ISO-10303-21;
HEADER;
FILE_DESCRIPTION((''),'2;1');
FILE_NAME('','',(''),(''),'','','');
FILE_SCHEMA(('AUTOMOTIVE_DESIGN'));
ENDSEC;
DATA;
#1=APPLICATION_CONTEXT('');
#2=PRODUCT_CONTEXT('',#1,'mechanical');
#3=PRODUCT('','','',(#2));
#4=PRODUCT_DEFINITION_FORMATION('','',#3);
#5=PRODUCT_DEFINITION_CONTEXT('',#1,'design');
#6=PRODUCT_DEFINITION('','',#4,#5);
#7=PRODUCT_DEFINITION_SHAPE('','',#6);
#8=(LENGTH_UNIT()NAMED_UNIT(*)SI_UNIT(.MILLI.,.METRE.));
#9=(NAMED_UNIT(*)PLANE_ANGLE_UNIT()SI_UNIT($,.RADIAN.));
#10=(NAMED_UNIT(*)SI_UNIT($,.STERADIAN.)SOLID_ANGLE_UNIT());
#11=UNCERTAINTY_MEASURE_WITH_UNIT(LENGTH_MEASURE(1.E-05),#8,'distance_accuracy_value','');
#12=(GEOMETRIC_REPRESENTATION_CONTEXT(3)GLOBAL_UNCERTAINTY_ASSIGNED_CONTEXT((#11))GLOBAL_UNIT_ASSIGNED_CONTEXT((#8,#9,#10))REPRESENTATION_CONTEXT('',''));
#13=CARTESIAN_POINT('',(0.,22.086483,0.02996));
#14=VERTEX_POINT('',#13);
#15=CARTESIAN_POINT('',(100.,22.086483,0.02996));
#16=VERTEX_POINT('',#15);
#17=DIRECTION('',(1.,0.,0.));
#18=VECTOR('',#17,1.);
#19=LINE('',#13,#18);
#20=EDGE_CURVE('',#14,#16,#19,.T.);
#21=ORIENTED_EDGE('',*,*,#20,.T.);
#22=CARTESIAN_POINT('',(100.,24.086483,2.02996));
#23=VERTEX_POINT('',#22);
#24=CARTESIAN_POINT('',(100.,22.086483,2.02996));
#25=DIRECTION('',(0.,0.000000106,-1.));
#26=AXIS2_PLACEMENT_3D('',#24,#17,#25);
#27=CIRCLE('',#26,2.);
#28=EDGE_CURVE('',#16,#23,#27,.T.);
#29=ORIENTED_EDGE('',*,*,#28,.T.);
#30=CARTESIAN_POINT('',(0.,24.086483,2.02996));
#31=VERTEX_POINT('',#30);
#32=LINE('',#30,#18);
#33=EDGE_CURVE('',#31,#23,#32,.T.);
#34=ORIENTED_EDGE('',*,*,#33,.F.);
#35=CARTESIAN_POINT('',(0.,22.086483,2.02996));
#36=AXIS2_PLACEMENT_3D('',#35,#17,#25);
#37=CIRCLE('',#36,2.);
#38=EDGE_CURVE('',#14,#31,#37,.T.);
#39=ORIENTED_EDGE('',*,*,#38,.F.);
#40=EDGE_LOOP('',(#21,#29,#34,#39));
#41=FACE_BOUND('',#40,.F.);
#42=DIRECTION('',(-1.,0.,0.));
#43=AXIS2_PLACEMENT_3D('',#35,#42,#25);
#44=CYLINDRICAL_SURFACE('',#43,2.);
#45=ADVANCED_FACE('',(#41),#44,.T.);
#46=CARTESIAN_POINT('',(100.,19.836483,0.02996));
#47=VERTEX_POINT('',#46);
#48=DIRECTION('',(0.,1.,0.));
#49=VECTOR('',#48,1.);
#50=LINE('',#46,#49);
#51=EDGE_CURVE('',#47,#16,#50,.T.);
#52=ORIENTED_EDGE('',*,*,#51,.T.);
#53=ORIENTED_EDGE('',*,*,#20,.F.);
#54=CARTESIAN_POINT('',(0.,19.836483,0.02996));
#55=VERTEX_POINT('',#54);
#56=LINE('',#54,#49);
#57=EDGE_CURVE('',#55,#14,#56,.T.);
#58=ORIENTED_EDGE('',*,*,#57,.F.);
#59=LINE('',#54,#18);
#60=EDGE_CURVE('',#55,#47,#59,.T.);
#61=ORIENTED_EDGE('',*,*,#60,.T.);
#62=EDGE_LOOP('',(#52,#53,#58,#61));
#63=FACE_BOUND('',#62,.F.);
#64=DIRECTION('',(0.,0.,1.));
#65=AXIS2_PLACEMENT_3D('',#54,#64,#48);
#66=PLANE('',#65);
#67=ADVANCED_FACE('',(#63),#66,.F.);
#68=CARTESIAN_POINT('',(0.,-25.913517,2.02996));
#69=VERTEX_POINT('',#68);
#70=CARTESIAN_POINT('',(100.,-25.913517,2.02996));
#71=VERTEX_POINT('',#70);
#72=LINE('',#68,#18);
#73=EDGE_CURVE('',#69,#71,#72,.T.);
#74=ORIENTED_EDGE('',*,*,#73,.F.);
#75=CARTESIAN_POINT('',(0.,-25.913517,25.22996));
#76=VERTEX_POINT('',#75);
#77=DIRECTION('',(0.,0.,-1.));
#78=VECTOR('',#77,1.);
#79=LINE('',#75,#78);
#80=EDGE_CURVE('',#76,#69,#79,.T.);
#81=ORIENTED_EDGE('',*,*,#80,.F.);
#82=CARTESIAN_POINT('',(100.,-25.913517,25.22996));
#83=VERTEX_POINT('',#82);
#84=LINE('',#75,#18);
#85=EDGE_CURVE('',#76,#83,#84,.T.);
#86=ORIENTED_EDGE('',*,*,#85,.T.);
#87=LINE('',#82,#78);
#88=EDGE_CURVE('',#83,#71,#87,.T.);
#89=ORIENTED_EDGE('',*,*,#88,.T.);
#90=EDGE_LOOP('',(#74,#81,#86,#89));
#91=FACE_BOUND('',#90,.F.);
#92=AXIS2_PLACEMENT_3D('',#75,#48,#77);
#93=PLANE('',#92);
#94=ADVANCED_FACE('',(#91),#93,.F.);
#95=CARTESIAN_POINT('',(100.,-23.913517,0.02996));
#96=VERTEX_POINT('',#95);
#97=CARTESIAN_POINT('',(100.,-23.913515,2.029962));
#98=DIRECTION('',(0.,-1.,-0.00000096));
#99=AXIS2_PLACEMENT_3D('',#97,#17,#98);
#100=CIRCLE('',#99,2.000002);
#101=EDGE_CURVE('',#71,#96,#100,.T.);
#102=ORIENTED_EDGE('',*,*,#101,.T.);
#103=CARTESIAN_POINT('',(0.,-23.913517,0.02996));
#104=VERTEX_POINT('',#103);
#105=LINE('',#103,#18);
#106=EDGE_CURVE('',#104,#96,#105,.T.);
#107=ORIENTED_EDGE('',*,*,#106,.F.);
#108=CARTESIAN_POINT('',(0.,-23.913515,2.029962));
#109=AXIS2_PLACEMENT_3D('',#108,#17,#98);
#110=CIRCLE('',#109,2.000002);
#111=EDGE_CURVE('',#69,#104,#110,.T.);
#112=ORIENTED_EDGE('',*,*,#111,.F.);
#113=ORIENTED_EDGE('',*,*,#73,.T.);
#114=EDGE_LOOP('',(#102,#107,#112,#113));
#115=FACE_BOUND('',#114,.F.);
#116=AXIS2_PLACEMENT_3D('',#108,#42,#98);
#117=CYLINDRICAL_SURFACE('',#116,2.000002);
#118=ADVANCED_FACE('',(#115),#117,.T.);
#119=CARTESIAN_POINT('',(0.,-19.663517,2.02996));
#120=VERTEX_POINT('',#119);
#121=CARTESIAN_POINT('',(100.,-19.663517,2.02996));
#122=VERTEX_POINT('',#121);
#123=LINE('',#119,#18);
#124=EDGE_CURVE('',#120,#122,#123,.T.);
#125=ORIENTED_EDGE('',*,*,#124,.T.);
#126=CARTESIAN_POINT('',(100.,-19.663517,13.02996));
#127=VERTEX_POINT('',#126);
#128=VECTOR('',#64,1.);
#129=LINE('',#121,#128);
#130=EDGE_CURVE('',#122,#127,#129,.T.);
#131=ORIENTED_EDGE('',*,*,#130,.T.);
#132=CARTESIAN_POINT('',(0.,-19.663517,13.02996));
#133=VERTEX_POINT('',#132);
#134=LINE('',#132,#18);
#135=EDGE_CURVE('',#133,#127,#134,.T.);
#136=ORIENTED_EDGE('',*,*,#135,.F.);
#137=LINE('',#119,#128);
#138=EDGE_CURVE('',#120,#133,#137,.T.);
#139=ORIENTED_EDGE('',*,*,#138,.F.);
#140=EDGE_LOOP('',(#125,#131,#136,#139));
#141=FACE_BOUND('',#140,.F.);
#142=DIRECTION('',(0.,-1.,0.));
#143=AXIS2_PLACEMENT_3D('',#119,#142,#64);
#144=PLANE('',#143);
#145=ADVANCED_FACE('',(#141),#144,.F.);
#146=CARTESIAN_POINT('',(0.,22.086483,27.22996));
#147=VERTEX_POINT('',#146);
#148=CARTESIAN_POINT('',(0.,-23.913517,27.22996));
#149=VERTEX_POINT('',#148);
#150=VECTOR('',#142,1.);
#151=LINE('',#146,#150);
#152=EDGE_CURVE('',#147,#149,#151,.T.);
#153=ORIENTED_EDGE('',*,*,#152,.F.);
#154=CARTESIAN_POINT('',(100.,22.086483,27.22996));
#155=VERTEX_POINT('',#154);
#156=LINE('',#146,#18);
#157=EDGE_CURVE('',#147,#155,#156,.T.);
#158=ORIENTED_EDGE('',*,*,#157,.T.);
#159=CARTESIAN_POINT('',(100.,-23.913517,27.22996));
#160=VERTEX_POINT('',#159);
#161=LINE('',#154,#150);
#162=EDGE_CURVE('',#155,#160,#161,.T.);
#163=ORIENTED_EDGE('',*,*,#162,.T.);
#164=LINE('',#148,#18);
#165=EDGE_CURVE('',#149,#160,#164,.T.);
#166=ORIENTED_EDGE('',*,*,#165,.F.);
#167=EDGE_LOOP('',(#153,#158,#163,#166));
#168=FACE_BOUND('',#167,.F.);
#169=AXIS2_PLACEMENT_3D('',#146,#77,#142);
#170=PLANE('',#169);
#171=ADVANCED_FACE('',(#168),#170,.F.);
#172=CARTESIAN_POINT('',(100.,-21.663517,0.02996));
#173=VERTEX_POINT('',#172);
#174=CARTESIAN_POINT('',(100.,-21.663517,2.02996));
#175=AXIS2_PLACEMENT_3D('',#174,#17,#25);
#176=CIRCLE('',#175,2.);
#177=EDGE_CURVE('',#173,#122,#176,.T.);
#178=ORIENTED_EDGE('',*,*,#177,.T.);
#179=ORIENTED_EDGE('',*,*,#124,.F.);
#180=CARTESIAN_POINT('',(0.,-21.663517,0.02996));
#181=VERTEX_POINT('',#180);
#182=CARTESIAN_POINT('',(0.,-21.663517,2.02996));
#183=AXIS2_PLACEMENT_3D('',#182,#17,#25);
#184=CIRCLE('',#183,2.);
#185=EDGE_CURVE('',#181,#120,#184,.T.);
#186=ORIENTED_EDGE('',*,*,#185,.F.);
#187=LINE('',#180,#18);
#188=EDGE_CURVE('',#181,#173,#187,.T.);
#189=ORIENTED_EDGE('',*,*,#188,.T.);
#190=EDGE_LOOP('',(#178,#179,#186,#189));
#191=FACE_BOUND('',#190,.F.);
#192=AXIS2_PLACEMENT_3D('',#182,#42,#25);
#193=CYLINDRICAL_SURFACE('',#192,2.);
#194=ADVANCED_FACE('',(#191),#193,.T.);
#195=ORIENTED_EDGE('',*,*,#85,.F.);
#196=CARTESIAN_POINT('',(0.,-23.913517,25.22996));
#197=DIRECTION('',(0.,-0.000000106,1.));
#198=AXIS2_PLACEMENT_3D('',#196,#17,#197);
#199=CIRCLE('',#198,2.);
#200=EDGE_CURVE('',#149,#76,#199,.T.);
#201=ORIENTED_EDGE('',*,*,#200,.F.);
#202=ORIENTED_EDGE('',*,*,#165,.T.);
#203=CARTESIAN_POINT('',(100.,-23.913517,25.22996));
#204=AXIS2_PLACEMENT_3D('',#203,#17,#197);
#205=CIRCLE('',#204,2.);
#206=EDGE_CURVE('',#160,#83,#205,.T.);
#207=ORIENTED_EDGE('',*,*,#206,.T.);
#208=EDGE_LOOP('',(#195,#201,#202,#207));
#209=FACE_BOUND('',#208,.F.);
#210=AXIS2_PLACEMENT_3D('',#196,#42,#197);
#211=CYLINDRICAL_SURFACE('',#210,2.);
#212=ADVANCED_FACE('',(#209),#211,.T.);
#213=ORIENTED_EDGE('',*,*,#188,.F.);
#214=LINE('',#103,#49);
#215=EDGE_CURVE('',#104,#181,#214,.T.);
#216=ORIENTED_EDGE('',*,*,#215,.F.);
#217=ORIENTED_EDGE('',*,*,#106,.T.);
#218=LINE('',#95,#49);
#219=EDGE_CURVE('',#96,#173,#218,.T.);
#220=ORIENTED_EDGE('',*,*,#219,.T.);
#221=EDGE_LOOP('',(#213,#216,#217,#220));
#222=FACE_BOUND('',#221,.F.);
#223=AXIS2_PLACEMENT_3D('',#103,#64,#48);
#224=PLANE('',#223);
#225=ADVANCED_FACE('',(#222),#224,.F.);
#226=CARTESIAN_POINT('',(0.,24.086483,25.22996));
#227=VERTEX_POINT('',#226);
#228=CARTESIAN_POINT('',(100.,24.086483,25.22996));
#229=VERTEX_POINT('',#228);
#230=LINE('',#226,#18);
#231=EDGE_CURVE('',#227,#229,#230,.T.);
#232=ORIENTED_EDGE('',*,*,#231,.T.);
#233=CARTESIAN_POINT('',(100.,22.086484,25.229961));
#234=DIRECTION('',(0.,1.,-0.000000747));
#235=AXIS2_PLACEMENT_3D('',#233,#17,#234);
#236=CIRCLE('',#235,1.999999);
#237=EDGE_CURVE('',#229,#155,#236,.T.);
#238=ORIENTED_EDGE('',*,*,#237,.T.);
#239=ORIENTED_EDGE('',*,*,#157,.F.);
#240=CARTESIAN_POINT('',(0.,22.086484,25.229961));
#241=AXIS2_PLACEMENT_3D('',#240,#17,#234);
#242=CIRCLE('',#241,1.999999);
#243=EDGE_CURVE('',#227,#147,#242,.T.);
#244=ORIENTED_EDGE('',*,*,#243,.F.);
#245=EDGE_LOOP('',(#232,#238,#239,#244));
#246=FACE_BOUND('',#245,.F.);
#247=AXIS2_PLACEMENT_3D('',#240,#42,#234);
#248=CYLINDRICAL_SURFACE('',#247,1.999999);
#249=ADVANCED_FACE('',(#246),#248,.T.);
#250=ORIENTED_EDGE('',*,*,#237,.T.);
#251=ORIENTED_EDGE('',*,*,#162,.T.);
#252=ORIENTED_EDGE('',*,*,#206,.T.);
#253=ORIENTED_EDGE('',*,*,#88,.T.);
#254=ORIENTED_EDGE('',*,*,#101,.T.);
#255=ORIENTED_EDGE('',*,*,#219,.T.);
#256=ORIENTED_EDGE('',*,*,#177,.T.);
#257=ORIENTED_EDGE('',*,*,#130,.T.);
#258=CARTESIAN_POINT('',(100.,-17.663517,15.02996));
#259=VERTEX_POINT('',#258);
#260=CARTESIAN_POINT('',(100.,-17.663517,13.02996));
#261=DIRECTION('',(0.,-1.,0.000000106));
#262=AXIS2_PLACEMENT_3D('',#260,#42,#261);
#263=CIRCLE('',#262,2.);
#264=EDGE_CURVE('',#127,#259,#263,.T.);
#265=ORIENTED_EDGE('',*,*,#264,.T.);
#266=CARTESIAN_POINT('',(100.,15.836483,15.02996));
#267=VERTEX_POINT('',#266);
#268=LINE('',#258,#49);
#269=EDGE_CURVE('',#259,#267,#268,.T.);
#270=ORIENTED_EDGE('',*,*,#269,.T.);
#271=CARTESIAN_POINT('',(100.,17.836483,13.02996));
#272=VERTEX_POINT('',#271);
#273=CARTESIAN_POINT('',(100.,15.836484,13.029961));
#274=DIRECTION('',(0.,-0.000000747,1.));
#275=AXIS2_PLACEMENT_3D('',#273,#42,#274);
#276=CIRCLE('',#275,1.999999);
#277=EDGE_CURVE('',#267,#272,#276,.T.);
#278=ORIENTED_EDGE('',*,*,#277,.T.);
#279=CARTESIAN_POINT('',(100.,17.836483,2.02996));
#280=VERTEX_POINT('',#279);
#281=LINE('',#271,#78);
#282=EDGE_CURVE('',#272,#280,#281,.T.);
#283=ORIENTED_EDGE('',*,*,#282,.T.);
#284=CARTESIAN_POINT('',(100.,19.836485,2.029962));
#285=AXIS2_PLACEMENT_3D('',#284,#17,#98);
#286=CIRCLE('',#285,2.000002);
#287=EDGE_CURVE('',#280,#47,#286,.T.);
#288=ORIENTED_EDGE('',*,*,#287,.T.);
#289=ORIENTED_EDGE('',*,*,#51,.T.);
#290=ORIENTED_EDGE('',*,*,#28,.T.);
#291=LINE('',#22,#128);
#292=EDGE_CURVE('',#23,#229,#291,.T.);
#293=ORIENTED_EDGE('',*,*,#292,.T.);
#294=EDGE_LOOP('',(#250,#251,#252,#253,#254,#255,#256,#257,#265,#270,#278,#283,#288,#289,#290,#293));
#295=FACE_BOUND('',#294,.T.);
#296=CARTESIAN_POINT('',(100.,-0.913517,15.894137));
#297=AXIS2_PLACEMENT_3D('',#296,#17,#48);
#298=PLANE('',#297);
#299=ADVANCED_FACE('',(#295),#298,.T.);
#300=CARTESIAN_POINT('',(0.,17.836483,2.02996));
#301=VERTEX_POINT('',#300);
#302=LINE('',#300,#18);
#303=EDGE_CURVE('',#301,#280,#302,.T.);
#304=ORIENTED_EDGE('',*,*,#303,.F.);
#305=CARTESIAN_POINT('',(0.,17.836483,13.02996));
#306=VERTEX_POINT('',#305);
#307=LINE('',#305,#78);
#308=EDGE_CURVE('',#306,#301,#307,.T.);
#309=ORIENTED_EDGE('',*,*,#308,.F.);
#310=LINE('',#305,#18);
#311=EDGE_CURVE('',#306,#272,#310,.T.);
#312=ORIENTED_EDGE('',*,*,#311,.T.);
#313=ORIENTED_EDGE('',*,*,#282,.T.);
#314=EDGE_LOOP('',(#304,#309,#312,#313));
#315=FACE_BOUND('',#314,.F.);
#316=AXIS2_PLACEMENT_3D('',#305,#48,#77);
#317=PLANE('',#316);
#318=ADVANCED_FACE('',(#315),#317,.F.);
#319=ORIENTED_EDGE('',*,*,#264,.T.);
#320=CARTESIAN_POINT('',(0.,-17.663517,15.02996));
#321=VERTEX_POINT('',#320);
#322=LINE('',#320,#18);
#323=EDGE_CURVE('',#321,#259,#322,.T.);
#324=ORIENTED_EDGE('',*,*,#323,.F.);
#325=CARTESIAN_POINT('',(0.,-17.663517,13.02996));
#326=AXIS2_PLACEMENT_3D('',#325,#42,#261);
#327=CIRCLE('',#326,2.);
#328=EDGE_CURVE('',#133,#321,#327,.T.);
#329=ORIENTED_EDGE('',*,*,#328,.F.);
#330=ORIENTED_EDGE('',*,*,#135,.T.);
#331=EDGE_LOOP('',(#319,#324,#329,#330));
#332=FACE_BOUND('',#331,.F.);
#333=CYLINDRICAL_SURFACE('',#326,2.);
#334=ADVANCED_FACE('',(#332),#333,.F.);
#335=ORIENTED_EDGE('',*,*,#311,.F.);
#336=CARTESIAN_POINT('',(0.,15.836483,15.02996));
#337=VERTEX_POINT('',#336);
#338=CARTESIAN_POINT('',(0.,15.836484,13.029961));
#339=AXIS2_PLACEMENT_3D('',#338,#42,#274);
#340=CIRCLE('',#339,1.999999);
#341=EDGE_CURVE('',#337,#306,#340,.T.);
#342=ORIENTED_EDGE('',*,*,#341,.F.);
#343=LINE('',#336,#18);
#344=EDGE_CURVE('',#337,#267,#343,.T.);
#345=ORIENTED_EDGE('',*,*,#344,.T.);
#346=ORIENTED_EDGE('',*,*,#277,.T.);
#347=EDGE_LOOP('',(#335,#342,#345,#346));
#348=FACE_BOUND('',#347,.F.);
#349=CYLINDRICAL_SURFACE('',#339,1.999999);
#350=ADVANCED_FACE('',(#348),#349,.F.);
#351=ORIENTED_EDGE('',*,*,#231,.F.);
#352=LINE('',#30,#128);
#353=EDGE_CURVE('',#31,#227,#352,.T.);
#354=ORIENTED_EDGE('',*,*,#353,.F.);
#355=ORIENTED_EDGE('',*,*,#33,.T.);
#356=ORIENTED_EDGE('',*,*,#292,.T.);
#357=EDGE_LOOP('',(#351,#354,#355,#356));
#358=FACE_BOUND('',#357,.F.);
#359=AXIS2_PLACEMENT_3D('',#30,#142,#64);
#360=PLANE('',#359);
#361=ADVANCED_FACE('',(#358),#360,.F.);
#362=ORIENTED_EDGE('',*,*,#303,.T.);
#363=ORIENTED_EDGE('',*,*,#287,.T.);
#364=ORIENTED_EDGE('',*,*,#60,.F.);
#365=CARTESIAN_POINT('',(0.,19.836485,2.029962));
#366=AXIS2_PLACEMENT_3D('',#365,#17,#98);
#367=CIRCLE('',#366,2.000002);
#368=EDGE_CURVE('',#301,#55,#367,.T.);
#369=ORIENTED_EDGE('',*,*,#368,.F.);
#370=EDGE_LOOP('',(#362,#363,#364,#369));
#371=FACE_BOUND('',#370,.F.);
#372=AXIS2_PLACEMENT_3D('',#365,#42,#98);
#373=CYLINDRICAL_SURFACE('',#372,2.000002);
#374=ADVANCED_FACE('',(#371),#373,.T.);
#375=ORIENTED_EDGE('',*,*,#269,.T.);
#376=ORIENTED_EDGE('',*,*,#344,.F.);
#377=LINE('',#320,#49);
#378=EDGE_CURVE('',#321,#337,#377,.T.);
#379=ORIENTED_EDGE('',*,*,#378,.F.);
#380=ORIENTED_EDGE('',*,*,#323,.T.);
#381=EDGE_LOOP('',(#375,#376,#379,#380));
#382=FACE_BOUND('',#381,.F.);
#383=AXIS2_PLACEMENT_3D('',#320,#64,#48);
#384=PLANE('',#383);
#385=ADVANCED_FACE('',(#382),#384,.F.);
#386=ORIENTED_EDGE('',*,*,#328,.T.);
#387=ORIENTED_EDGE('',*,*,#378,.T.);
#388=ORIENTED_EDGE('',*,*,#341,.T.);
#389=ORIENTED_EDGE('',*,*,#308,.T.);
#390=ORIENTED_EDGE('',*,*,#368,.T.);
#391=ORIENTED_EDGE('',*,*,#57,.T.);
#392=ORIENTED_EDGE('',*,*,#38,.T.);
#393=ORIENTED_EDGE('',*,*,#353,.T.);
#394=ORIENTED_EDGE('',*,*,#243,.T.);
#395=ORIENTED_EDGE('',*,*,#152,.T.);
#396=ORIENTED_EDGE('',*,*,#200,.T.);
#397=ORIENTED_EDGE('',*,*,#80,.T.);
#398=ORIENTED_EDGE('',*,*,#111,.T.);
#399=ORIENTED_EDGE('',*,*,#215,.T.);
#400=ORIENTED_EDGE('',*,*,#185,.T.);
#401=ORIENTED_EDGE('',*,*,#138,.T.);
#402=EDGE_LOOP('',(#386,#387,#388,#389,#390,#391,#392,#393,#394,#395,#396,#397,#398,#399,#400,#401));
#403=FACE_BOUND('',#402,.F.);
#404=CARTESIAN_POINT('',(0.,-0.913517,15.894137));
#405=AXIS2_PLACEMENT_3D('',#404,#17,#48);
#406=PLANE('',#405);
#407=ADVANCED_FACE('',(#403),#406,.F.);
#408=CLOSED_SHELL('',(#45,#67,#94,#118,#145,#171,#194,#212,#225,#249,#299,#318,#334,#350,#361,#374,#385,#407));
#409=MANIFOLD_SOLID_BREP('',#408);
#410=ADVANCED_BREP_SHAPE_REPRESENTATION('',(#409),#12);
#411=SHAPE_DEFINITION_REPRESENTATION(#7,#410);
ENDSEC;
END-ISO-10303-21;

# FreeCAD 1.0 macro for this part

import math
import FreeCAD as App
import Part
import Sketcher

V = App.Vector
Q = App.Units.Quantity

doc = App.newDocument("Part")
body = doc.addObject("PartDesign::Body", "Body")

# Sketch on YZ plane
sketch1 = body.newObject("Sketcher::SketchObject", "Sketch")
sketch1.AttachmentSupport = (doc.getObject("YZ_Plane"), [""])
sketch1.MapMode = "FlatFace"
sketch1.addGeometry([
    Part.LineSegment(V(22.086483, 27.22996, 0), V(-23.913517, 27.22996, 0)),  # 0
    Part.ArcOfCircle(Part.Circle(V(-23.913517, 25.22996, 0), V(0, 0, 1), 2), math.radians(90.000006), math.radians(179.999994)),  # 1
    Part.LineSegment(V(-25.913517, 25.22996, 0), V(-25.913517, 2.02996, 0)),  # 2
    Part.ArcOfCircle(Part.Circle(V(-23.913515, 2.029962, 0), V(0, 0, 1), 2.000002), math.radians(-179.999945), math.radians(-90.000055)),  # 3
    Part.LineSegment(V(-23.913517, 0.02996, 0), V(-21.663517, 0.02996, 0)),  # 4
    Part.ArcOfCircle(Part.Circle(V(-21.663517, 2.02996, 0), V(0, 0, 1), 2), math.radians(-89.999994), math.radians(-0.000006)),  # 5
    Part.LineSegment(V(-19.663517, 2.02996, 0), V(-19.663517, 13.02996, 0)),  # 6
    Part.ArcOfCircle(Part.Circle(V(-17.663517, 13.02996, 0), V(0, 0, 1), 2), math.radians(90.000006), math.radians(179.999994)),  # 7
    Part.LineSegment(V(-17.663517, 15.02996, 0), V(15.836483, 15.02996, 0)),  # 8
    Part.ArcOfCircle(Part.Circle(V(15.836484, 13.029961, 0), V(0, 0, 1), 1.999999), math.radians(-0.000043), math.radians(90.000043)),  # 9
    Part.LineSegment(V(17.836483, 13.02996, 0), V(17.836483, 2.02996, 0)),  # 10
    Part.ArcOfCircle(Part.Circle(V(19.836485, 2.029962, 0), V(0, 0, 1), 2.000002), math.radians(-179.999945), math.radians(-90.000055)),  # 11
    Part.LineSegment(V(19.836483, 0.02996, 0), V(22.086483, 0.02996, 0)),  # 12
    Part.ArcOfCircle(Part.Circle(V(22.086483, 2.02996, 0), V(0, 0, 1), 2), math.radians(-89.999994), math.radians(-0.000006)),  # 13
    Part.LineSegment(V(24.086483, 2.02996, 0), V(24.086483, 25.22996, 0)),  # 14
    Part.ArcOfCircle(Part.Circle(V(22.086484, 25.229961, 0), V(0, 0, 1), 1.999999), math.radians(-0.000043), math.radians(90.000043)),  # 15
], False)
sketch1.addConstraint([
    Sketcher.Constraint("Tangent", 0, 2, 1, 1),
    Sketcher.Constraint("Tangent", 1, 2, 2, 1),
    Sketcher.Constraint("Tangent", 2, 2, 3, 1),
    Sketcher.Constraint("Tangent", 3, 2, 4, 1),
    Sketcher.Constraint("Tangent", 4, 2, 5, 1),
    Sketcher.Constraint("Tangent", 5, 2, 6, 1),
    Sketcher.Constraint("Tangent", 6, 2, 7, 2),
    Sketcher.Constraint("Tangent", 7, 1, 8, 1),
    Sketcher.Constraint("Tangent", 8, 2, 9, 2),
    Sketcher.Constraint("Tangent", 9, 1, 10, 1),
    Sketcher.Constraint("Tangent", 10, 2, 11, 1),
    Sketcher.Constraint("Tangent", 11, 2, 12, 1),
    Sketcher.Constraint("Tangent", 12, 2, 13, 1),
    Sketcher.Constraint("Tangent", 13, 2, 14, 1),
    Sketcher.Constraint("Tangent", 14, 2, 15, 1),
    Sketcher.Constraint("Tangent", 15, 2, 0, 1),
    Sketcher.Constraint("Horizontal", 0),
    Sketcher.Constraint("Vertical", 2),
    Sketcher.Constraint("Horizontal", 4),
    Sketcher.Constraint("Vertical", 6),
    Sketcher.Constraint("Horizontal", 8),
    Sketcher.Constraint("Vertical", 10),
    Sketcher.Constraint("Horizontal", 12),
    Sketcher.Constraint("Vertical", 14),
    Sketcher.Constraint("Equal", 1, 3),
    Sketcher.Constraint("Equal", 3, 5),
    Sketcher.Constraint("Equal", 5, 7),
    Sketcher.Constraint("Equal", 7, 9),
    Sketcher.Constraint("Equal", 7, 11),
    Sketcher.Constraint("Equal", 11, 13),
    Sketcher.Constraint("Equal", 13, 15),
    Sketcher.Constraint("Horizontal", 5, 3, 11, 3),
    Sketcher.Constraint("Equal", 4, 12),
    Sketcher.Constraint("Radius", 1, Q("2 mm")),
    Sketcher.Constraint("DistanceX", 0, 2, 0, 1, Q("46 mm")),
    Sketcher.Constraint("DistanceY", 6, 1, 6, 2, Q("11 mm")),
    Sketcher.Constraint("DistanceX", 8, 1, 8, 2, Q("33.5 mm")),
    Sketcher.Constraint("DistanceY", 2, 2, 2, 1, Q("23.2 mm")),
    Sketcher.Constraint("DistanceY", -1, 1, 1, 3, Q("25.22996 mm")),
    Sketcher.Constraint("DistanceX", 1, 3, -1, 1, Q("23.913517 mm")),
])
pad1 = body.newObject("PartDesign::Pad", "Pad")
pad1.Profile = sketch1
pad1.Length = 100

doc.recompute()
